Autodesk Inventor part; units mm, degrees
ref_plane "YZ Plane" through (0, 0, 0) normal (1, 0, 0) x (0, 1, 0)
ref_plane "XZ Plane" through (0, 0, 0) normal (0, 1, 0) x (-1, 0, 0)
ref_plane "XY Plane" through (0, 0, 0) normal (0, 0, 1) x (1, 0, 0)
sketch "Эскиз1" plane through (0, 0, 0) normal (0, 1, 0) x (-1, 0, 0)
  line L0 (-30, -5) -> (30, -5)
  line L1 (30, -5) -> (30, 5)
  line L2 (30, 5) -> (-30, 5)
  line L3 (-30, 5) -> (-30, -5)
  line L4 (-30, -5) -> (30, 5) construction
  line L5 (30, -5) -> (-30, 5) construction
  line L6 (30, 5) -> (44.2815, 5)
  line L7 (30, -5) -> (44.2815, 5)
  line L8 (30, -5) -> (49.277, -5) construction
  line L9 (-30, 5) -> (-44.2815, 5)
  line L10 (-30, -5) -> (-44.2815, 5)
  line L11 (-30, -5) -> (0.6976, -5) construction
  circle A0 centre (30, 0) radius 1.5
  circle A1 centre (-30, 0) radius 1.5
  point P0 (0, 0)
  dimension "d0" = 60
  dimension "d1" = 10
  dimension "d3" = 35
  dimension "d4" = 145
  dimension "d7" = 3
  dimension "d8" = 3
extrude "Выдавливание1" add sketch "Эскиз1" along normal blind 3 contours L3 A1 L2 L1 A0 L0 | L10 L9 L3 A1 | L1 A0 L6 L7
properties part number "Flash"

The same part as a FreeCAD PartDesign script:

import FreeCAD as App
import Part
import Sketcher
Q = App.Units.Quantity


def add_polygon(sketch, points):
    """Adds a closed chain of lines whose ends are joined by coincident constraints."""
    first, n = sketch.GeometryCount, len(points)
    for a, b in zip(points, points[1:] + points[:1]):
        sketch.addGeometry(Part.LineSegment(App.Vector(*a, 0), App.Vector(*b, 0)), False)
    for i in range(n):
        sketch.addConstraint(Sketcher.Constraint("Coincident", first + i, 2, first + (i + 1) % n, 1))

doc = App.newDocument("Part")
body = doc.addObject("PartDesign::Body", "Body")

# Sketch on XZ plane
sketch1 = doc.addObject("Sketcher::SketchObject", "Sketch")
body.addObject(sketch1)
sketch1.AttachmentSupport = (doc.XZ_Plane, [""])
sketch1.MapMode = "FlatFace"
add_polygon(sketch1, [(44.2815, 5), (30, -5), (-30, -5), (-44.2815, 5)])  # lines 0-3
sketch1.addGeometry(Part.Circle(App.Vector(30, 0, 0), App.Vector(0, 0, 1), 1.5), False)  # 4
sketch1.addGeometry(Part.Circle(App.Vector(-30, 0, 0), App.Vector(0, 0, 1), 1.5), False)  # 5
sketch1.addConstraint([
    Sketcher.Constraint("Horizontal", 1),
    Sketcher.Constraint("Horizontal", 3),
    Sketcher.Constraint("Equal", 4, 5),
    Sketcher.Constraint("Symmetric", 4, 3, 5, 3, -1, 1),
    Sketcher.Constraint("PointOnObject", 4, 3, -1),
    Sketcher.Constraint("Vertical", 4, 3, 0, 2),
    Sketcher.Constraint("Vertical", 5, 3, 1, 2),
    Sketcher.Constraint("Equal", 0, 2),
    Sketcher.Constraint("Diameter", 4, 3.0),
    Sketcher.Constraint("DistanceX", 1, 2, 1, 1, 60.0),
    Sketcher.Constraint("Angle", 0, Q("-145 deg")),
    Sketcher.Constraint("DistanceY", 1, 2, 2, 2, 10.0),
    Sketcher.Constraint("DistanceY", 0, 2, -1, 1, 5.0),
])
pad1 = doc.addObject("PartDesign::Pad", "Pad")
body.addObject(pad1)
pad1.Profile = sketch1
pad1.Length = 3
pad1.Reversed = True

doc.recompute()
